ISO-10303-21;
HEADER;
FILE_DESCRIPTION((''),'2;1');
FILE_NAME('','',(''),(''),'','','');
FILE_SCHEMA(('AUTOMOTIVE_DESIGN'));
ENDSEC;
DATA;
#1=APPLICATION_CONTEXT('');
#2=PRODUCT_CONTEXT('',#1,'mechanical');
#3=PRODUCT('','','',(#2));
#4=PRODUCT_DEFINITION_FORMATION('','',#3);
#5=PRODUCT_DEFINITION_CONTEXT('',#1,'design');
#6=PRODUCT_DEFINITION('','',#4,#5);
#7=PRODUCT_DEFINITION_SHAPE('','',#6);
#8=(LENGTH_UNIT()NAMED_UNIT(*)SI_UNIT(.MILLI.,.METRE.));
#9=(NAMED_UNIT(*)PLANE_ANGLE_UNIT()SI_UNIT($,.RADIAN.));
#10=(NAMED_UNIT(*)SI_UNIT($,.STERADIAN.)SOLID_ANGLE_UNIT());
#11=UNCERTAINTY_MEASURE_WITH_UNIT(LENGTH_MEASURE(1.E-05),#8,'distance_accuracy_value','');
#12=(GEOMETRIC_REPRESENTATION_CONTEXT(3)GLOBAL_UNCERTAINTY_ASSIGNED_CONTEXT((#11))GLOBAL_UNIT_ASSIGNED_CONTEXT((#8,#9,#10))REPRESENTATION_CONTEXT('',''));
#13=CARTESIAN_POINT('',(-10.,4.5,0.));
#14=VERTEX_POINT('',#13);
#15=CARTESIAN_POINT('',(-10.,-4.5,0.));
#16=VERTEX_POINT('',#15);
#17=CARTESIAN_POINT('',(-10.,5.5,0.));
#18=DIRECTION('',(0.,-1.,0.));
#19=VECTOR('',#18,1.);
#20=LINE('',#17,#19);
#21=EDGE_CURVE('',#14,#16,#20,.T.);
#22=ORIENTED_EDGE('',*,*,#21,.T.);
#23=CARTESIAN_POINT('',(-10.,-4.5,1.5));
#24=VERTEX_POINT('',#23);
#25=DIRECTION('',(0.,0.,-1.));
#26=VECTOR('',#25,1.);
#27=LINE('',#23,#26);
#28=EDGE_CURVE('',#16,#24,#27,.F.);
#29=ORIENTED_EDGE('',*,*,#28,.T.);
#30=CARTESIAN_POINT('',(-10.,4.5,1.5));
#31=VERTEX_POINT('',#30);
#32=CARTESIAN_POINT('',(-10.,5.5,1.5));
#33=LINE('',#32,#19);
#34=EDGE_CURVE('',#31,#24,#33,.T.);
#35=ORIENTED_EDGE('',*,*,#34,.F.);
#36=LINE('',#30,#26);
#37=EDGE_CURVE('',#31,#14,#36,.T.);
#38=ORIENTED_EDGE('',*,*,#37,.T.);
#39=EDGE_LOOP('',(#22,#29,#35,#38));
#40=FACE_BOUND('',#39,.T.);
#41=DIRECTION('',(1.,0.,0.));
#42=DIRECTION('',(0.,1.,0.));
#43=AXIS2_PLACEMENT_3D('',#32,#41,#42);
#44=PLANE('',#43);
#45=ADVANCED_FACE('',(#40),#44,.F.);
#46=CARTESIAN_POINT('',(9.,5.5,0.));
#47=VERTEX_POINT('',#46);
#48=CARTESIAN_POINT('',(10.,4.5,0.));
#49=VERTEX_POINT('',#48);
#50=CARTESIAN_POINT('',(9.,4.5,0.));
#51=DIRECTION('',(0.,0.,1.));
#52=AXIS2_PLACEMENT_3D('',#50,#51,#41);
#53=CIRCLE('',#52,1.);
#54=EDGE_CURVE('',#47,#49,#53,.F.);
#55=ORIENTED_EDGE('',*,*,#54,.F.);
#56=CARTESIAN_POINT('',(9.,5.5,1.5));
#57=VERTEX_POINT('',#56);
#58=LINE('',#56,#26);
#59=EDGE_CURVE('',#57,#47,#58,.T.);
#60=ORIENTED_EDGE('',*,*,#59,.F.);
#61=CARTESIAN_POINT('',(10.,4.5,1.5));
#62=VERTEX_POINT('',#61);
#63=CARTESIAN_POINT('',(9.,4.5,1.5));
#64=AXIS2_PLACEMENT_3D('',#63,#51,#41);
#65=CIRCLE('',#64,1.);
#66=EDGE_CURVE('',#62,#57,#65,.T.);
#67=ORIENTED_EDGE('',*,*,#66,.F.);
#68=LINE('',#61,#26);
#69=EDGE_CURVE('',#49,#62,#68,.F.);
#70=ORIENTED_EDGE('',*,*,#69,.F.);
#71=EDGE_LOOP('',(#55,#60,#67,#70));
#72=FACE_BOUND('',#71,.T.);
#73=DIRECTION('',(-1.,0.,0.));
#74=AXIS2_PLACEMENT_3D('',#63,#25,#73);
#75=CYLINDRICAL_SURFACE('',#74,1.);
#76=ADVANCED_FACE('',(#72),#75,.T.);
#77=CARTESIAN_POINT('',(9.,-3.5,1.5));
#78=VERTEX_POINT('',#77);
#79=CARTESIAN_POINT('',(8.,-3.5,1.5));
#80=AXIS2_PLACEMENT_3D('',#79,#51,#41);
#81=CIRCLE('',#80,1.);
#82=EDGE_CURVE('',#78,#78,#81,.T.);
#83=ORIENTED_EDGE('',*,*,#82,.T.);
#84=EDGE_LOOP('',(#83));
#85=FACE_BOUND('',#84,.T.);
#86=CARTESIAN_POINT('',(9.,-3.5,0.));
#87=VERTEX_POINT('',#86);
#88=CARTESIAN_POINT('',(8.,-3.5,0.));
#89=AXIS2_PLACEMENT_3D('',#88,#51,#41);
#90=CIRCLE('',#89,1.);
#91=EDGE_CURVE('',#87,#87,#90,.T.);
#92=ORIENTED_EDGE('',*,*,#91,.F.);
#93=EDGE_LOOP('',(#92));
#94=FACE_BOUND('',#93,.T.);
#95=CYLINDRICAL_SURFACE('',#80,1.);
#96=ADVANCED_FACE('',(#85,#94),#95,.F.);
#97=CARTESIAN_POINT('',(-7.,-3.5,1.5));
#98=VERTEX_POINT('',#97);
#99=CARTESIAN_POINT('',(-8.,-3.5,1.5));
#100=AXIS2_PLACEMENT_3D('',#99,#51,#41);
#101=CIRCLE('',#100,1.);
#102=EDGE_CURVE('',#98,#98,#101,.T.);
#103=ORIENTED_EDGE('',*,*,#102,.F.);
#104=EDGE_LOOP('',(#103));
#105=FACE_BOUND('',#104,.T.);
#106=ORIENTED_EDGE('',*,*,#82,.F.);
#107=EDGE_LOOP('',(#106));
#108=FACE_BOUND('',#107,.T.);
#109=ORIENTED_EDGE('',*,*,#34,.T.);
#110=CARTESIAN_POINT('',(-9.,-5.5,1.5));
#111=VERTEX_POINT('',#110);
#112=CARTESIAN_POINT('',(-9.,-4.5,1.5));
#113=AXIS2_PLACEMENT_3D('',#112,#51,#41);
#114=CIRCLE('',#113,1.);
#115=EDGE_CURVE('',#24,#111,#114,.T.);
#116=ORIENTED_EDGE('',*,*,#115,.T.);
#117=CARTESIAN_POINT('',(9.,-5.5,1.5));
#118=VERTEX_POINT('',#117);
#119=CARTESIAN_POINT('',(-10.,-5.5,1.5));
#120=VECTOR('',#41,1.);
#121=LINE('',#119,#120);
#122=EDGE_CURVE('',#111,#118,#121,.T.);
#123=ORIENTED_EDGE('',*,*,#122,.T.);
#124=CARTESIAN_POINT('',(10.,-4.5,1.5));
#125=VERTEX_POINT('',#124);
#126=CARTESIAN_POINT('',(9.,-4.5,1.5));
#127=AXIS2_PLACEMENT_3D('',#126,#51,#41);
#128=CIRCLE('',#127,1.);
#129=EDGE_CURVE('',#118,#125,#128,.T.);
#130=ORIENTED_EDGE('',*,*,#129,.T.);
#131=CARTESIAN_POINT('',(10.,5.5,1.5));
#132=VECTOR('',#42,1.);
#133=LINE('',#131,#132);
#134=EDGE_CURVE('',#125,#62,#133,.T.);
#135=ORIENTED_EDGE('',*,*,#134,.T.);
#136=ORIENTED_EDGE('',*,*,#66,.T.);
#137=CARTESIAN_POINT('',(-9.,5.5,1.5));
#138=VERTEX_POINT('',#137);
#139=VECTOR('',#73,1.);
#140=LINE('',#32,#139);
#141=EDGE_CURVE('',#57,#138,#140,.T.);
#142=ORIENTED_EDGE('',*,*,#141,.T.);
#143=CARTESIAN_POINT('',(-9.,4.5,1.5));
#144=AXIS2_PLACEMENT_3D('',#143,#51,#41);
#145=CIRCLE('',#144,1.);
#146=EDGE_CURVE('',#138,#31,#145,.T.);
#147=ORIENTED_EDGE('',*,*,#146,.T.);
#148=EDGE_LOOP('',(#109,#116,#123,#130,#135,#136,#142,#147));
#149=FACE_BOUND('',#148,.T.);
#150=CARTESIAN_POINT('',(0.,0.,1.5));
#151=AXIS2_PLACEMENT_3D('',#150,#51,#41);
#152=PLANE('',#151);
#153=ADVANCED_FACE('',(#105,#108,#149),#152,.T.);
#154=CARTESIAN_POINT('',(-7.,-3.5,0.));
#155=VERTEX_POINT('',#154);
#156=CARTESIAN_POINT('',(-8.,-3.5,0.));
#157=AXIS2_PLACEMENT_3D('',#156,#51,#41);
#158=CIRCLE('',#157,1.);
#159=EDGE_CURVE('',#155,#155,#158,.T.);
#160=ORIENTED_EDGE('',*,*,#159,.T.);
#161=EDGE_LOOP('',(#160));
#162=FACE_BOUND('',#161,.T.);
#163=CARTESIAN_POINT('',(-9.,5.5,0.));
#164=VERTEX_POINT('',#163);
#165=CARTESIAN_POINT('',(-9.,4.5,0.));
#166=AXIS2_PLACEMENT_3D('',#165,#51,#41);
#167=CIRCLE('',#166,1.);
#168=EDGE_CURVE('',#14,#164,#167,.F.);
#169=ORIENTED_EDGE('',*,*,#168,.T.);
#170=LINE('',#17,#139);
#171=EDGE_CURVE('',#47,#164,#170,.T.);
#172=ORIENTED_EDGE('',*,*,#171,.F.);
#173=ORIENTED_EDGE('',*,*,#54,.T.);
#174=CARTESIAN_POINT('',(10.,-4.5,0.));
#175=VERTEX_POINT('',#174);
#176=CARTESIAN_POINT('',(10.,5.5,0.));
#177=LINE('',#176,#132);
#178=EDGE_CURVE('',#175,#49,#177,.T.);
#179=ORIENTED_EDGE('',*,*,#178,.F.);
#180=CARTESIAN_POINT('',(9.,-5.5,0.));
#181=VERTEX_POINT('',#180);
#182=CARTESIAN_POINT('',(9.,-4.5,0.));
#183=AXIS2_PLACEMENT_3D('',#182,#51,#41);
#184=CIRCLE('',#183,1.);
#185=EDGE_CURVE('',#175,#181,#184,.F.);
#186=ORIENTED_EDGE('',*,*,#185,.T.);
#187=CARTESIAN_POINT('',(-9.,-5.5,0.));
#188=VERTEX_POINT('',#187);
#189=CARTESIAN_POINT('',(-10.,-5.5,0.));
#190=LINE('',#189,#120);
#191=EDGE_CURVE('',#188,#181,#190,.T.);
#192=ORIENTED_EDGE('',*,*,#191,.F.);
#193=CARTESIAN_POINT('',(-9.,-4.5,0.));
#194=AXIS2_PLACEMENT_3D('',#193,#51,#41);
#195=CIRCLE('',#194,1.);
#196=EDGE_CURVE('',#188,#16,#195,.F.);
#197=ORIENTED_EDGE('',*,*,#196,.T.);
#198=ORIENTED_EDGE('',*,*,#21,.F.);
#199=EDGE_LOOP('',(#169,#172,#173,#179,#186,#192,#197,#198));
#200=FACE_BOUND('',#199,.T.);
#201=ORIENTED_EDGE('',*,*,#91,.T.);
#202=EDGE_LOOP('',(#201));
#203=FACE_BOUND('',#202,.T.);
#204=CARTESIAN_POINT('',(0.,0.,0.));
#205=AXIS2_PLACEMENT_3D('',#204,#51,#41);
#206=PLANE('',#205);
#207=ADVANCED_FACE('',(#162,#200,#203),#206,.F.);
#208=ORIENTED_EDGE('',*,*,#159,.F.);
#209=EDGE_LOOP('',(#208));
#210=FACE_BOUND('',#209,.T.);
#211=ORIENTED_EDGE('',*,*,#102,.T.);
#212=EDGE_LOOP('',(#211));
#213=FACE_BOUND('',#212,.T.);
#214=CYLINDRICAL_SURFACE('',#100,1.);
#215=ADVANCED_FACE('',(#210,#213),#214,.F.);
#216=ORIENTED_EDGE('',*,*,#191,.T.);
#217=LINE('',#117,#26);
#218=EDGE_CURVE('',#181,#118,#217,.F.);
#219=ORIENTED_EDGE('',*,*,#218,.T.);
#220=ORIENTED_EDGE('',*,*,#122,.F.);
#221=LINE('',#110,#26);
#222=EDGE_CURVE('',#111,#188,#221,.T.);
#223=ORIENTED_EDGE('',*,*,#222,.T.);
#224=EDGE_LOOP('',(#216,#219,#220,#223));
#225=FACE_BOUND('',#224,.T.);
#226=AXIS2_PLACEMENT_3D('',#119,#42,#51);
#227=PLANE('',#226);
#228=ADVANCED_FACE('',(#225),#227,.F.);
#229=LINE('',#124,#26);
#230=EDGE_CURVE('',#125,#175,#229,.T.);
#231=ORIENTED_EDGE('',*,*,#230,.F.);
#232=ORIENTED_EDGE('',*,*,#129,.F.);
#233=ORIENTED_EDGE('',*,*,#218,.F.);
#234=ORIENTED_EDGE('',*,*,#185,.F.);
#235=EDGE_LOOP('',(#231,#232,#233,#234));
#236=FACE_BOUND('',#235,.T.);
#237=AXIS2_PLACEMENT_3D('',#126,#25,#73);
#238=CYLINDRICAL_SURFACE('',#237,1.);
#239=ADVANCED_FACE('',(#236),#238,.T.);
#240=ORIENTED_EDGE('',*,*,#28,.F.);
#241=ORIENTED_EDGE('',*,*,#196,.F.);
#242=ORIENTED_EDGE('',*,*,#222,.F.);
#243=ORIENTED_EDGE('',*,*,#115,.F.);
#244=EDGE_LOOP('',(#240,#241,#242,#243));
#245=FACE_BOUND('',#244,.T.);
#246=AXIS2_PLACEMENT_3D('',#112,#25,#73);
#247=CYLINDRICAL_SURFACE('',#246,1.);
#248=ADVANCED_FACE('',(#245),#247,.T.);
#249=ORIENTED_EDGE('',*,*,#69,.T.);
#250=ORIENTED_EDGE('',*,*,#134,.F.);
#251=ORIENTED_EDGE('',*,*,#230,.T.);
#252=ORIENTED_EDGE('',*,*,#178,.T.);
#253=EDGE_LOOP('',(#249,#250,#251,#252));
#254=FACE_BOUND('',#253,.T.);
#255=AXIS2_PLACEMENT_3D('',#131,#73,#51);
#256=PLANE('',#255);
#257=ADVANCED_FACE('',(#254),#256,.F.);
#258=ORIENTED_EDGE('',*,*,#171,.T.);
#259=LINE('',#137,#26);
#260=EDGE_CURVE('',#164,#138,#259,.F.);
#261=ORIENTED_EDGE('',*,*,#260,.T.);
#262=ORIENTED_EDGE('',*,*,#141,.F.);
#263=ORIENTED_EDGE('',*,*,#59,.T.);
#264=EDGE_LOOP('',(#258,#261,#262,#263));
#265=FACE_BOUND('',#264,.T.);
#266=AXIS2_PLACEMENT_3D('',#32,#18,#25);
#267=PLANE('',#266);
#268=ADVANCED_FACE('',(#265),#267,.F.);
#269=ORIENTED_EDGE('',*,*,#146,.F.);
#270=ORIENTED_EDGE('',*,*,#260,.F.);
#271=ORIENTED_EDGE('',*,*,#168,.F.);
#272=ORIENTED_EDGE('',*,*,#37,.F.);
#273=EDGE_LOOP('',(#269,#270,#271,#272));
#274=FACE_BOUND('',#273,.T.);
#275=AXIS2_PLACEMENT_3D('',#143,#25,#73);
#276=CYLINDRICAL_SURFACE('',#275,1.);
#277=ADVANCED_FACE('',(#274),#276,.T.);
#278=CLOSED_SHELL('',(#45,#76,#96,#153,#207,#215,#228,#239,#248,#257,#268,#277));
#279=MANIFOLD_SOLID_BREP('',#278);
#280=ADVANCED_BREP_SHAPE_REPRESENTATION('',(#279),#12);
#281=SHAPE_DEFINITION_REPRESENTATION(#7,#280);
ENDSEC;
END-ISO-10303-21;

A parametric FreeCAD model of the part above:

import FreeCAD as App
import Part
import Sketcher
Q = App.Units.Quantity


def edges_at(feature, points):
    """Names of the edges that pass closest to the given points."""
    edges = feature.Shape.Edges
    near = lambda p: min(range(len(edges)), key=lambda i: edges[i].distToShape(Part.Vertex(*p))[0])
    return sorted({f"Edge{near(p) + 1}" for p in points})


def add_polygon(sketch, points):
    """Adds a closed chain of lines whose ends are joined by coincident constraints."""
    first, n = sketch.GeometryCount, len(points)
    for a, b in zip(points, points[1:] + points[:1]):
        sketch.addGeometry(Part.LineSegment(App.Vector(*a, 0), App.Vector(*b, 0)), False)
    for i in range(n):
        sketch.addConstraint(Sketcher.Constraint("Coincident", first + i, 2, first + (i + 1) % n, 1))

doc = App.newDocument("Part")
body = doc.addObject("PartDesign::Body", "Body")

sketch1 = body.newObject("Sketcher::SketchObject", "Sketch")
sketch1.AttachmentSupport = (doc.getObject("XY_Plane"), [""])
sketch1.MapMode = "FlatFace"
add_polygon(sketch1, [(-10, 6), (-10, -6), (10, -6), (10, 6)])
sketch1.addConstraint(Sketcher.Constraint("Vertical", 0))
sketch1.addConstraint(Sketcher.Constraint("Horizontal", 1))
sketch1.addConstraint(Sketcher.Constraint("Vertical", 2))
sketch1.addConstraint(Sketcher.Constraint("Horizontal", 3))
sketch1.addConstraint(Sketcher.Constraint("Symmetric", 0, 2, 2, 2, -1, 1))
sketch1.addConstraint(Sketcher.Constraint("DistanceX", 1, 1, 1, 2, Q("20 mm")))
sketch1.addConstraint(Sketcher.Constraint("DistanceY", 0, 2, 0, 1, Q("11 mm")))
pad1 = body.newObject("PartDesign::Pad", "Pad")
pad1.Profile = sketch1
pad1.Length = 1.5
doc.recompute()

fillet = body.newObject("PartDesign::Fillet", "Fillet")
fillet.Base = (pad1, edges_at(pad1, [
    (10, -5.5, 0.75),
    (-10, -5.5, 0.75),
    (-10, 5.5, 0.75),
    (10, 5.5, 0.75),
]))
fillet.Radius = 1

sketch2 = body.newObject("Sketcher::SketchObject", "Sketch001")
sketch2.AttachmentSupport = (doc.getObject("XY_Plane"), [""])
sketch2.MapMode = "FlatFace"
sketch2.AttachmentOffset = App.Placement(App.Vector(0, 0, 1.5), App.Rotation())
sketch2.addGeometry(Part.Circle(App.Vector(-8, -3.5, 0), App.Vector(0, 0, 1), 1), False)
sketch2.addGeometry(Part.Circle(App.Vector(8, -3.5, 0), App.Vector(0, 0, 1), 1), False)
sketch2.addConstraint(Sketcher.Constraint("Equal", 0, 1))
sketch2.addConstraint(Sketcher.Constraint("Symmetric", 0, 3, 1, 3, -2))
sketch2.addConstraint(Sketcher.Constraint("Diameter", 0, Q("2 mm")))
sketch2.addConstraint(Sketcher.Constraint("DistanceX", 0, 3, -1, 1, Q("8 mm")))
sketch2.addConstraint(Sketcher.Constraint("DistanceY", 0, 3, -1, 1, Q("3.5 mm")))
doc.recompute()
hole = body.newObject("PartDesign::Hole", "Hole")
hole.Profile = sketch2
hole.ThreadType = "None"
hole.Diameter = 2
hole.DepthType = "Dimension"
hole.Depth = 2
hole.DrillPoint = "Angled"
hole.DrillPointAngle = 118

doc.recompute()
